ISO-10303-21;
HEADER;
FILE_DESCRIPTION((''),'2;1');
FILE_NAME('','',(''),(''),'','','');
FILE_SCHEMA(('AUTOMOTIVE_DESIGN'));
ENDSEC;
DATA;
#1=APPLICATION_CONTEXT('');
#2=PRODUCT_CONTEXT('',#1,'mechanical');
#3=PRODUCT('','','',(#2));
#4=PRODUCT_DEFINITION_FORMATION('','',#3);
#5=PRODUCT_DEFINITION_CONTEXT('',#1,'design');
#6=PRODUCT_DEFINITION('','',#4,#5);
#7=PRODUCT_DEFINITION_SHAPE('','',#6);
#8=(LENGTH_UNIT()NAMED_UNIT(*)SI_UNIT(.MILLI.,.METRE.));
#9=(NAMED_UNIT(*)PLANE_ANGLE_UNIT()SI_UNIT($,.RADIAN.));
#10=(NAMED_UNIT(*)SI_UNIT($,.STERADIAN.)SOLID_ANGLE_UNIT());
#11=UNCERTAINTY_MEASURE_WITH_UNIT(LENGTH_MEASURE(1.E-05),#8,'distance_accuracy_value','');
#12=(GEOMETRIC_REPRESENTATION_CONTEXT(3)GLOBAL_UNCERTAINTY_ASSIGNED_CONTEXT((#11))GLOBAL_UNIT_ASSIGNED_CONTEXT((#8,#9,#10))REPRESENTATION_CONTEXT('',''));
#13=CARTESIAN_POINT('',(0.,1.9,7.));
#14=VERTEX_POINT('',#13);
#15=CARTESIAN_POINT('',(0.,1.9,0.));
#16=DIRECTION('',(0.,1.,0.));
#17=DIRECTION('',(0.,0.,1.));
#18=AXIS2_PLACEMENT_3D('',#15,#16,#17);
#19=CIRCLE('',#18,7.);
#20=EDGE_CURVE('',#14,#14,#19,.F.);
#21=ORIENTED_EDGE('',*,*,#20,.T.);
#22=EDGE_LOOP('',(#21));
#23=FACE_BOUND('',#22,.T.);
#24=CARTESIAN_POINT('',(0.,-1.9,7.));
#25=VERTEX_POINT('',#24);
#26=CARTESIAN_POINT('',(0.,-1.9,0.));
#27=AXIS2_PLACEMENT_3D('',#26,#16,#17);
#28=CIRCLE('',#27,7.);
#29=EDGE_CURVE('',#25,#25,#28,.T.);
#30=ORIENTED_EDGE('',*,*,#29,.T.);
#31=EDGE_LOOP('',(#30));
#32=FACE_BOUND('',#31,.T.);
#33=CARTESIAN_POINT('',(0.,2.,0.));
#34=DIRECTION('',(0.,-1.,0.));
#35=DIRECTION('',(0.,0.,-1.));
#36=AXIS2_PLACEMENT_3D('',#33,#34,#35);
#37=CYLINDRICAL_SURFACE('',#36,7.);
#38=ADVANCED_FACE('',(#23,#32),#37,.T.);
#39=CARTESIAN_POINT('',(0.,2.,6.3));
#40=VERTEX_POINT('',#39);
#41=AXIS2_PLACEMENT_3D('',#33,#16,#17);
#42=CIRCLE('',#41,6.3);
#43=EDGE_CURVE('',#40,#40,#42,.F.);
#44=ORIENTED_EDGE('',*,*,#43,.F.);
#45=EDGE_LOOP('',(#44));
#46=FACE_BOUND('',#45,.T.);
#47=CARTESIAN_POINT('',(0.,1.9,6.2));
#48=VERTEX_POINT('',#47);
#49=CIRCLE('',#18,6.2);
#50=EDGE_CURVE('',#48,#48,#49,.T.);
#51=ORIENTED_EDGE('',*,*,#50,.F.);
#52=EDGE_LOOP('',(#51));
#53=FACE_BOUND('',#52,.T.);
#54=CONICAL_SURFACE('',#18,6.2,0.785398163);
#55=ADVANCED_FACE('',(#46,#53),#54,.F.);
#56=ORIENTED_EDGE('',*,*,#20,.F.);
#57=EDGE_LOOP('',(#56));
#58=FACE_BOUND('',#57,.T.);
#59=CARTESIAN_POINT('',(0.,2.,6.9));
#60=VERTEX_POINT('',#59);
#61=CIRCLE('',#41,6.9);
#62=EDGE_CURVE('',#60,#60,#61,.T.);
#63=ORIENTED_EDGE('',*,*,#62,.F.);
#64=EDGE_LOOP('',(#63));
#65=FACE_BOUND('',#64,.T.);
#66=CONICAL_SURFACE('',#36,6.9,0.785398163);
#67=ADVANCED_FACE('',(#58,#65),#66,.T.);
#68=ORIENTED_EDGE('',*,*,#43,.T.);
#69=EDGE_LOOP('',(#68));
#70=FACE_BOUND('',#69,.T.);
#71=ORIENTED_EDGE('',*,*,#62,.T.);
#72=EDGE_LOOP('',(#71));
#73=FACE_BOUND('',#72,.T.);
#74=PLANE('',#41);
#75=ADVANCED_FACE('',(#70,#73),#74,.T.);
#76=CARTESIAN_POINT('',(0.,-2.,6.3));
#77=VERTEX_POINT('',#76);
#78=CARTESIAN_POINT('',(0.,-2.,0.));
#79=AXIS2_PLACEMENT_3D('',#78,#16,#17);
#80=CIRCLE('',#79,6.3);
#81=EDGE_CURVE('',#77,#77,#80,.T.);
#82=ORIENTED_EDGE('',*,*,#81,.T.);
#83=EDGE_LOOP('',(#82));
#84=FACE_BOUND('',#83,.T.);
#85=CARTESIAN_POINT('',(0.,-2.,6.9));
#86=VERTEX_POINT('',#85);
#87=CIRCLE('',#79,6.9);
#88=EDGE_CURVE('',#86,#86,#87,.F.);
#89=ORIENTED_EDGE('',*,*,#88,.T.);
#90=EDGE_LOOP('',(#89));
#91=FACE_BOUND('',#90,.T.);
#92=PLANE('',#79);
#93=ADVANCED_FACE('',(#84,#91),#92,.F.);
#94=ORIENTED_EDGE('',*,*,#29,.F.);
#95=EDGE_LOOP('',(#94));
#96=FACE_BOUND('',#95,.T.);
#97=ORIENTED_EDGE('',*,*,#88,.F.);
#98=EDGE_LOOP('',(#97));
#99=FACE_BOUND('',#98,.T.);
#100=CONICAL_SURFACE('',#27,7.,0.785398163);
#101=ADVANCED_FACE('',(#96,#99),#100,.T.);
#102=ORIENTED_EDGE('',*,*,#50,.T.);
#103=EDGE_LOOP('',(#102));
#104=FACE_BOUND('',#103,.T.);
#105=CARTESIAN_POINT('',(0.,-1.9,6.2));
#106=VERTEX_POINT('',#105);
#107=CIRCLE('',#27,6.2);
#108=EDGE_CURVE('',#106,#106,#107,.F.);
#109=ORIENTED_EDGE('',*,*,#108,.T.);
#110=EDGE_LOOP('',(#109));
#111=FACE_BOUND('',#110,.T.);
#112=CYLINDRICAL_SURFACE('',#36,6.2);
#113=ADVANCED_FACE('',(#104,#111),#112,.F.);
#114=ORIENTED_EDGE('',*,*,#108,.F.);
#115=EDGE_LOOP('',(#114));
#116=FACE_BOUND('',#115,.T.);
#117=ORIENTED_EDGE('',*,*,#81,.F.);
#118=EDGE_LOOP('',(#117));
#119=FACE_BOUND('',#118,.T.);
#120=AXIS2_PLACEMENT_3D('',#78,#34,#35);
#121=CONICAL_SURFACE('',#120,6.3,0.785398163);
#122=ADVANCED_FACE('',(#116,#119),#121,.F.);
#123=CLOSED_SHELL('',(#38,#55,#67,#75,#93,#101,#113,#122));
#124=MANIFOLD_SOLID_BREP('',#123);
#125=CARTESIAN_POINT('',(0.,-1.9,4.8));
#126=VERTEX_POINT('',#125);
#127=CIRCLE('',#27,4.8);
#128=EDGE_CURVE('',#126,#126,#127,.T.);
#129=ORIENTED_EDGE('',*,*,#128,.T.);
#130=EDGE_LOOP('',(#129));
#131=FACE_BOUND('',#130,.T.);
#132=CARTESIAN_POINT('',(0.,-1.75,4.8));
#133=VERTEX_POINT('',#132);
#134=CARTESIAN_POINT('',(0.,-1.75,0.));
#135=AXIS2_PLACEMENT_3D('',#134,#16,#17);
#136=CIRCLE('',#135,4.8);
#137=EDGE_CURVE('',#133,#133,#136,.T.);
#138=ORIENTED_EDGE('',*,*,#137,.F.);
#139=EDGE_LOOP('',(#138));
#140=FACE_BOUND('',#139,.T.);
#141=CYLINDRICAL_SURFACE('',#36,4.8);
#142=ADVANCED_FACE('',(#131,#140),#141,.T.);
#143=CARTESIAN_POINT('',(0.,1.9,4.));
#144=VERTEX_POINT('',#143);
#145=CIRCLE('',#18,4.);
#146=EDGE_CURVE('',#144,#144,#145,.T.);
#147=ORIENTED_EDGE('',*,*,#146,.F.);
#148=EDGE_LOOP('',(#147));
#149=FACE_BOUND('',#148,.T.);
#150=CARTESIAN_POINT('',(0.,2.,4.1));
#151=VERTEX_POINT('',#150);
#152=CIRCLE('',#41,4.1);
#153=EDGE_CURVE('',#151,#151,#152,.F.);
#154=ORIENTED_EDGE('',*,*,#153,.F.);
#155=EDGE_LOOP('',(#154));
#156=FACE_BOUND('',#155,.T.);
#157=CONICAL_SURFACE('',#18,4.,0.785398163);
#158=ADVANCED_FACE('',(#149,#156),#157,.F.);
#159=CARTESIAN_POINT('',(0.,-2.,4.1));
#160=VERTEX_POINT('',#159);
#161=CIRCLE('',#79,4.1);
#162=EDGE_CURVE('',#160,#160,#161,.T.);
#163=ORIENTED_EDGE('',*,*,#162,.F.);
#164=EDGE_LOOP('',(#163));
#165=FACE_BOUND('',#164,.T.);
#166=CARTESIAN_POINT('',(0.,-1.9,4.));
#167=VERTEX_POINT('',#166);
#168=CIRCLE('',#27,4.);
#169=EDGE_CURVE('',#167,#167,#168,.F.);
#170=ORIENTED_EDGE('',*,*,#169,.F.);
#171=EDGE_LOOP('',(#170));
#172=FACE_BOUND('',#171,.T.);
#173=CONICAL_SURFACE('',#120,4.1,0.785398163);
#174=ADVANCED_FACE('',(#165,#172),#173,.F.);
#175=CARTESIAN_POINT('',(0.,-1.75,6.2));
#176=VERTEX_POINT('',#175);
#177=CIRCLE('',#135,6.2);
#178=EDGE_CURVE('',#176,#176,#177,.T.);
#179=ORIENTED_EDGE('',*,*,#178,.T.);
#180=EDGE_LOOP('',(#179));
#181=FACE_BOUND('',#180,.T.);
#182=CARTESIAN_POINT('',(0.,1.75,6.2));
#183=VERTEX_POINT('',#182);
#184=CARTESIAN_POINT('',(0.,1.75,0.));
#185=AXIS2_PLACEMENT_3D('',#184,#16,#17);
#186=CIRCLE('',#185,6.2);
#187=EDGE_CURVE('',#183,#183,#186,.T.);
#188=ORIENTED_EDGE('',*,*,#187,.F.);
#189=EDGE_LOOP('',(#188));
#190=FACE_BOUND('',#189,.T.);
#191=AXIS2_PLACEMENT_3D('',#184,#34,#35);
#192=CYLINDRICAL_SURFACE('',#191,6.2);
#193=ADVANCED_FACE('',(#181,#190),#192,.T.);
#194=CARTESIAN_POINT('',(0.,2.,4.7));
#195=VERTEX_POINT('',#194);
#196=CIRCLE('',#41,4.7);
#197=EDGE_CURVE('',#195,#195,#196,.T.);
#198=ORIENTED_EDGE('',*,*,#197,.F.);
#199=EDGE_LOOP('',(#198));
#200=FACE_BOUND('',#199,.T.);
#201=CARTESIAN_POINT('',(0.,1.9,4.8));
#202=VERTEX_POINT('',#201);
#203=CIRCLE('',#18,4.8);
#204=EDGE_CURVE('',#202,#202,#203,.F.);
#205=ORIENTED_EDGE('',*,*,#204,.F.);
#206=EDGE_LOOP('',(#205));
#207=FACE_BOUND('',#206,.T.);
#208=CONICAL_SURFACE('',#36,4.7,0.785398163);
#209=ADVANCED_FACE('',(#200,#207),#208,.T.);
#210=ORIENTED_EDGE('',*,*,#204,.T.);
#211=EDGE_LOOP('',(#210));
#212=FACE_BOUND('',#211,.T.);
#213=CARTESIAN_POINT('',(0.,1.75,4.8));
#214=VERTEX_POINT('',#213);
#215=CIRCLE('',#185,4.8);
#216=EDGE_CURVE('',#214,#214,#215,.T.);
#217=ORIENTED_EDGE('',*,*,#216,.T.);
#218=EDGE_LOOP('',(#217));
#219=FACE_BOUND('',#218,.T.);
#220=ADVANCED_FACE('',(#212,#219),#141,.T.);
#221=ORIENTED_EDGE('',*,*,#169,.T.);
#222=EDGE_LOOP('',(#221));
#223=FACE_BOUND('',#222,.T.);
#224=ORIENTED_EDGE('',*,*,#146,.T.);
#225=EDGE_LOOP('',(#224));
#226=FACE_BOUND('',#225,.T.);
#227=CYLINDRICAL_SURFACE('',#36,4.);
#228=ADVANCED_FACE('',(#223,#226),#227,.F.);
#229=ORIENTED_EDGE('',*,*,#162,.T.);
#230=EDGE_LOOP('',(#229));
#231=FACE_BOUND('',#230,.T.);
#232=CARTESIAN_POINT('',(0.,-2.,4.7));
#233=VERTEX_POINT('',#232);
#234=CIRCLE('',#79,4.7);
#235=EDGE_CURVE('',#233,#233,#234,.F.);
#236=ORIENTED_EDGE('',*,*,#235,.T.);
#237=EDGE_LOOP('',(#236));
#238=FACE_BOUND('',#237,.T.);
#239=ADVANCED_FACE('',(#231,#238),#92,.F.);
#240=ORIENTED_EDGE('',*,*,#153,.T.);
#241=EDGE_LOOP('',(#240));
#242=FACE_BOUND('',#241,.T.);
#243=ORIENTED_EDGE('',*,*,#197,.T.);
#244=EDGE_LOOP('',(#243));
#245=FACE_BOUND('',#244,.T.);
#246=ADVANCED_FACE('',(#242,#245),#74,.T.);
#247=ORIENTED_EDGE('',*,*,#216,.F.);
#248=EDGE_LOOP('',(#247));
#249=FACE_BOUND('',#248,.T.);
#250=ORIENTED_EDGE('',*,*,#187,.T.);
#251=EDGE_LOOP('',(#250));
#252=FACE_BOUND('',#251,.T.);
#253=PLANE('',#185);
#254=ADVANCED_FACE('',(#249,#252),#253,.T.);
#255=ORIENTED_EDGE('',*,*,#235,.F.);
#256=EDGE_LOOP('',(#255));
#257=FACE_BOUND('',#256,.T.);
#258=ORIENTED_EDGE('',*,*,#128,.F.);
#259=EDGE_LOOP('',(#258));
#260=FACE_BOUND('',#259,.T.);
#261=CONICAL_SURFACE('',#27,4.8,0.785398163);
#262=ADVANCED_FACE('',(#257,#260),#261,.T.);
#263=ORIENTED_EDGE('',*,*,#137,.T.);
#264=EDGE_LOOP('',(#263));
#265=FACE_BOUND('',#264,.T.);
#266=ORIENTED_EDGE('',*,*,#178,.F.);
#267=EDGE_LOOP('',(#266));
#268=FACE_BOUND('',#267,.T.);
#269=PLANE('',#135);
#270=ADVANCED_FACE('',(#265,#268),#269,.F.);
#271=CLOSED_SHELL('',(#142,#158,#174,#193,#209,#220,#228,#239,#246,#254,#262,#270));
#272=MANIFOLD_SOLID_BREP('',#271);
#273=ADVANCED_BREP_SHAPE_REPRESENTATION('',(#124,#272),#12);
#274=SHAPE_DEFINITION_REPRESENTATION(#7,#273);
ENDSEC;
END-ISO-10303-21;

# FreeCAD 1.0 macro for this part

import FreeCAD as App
import Part
import Sketcher

V = App.Vector


def edges_at(feature, points):
    """Names of the edges that pass closest to the given points."""
    edges = feature.Shape.Edges
    near = lambda p: min(range(len(edges)), key=lambda i: edges[i].distToShape(Part.Vertex(*p))[0])
    return sorted({f"Edge{near(p) + 1}" for p in points})

doc = App.newDocument("Part")
body = doc.addObject("PartDesign::Body", "Body")

sketch1 = doc.addObject("Sketcher::SketchObject", "Sketch")
body.addObject(sketch1)
sketch1.AttachmentSupport = (doc.XZ_Plane, [""])
sketch1.MapMode = "FlatFace"
sketch1.addGeometry(Part.Circle(V(0, 0, 0), V(0, 0, 1), 7), False)
sketch1.addGeometry(Part.Circle(V(0, 0, 0), V(0, 0, 1), 6), False)
sketch1.addConstraint(Sketcher.Constraint("Coincident", 0, 3, -1, 1))
sketch1.addConstraint(Sketcher.Constraint("Coincident", 1, 3, -1, 1))
sketch1.addConstraint(Sketcher.Constraint("Diameter", 0, 14.0))
sketch1.addConstraint(Sketcher.Constraint("Diameter", 1, 12.4))
pad1 = doc.addObject("PartDesign::Pad", "Pad")
body.addObject(pad1)
pad1.Profile = sketch1
pad1.Length = 4
pad1.Midplane = True
doc.recompute()

chamfer = doc.addObject("PartDesign::Chamfer", "Chamfer")
body.addObject(chamfer)
chamfer.Base = (pad1, edges_at(pad1, [
    (0, -2, -7),
    (0, -2, -6.2),
    (0, 2, -6.2),
    (0, 2, -7),
]))
chamfer.Size = 0.1
body2 = doc.addObject("PartDesign::Body", "Body001")

sketch2 = doc.addObject("Sketcher::SketchObject", "Sketch001")
body2.addObject(sketch2)
sketch2.AttachmentSupport = (doc.getObject("XZ_Plane001"), [""])
sketch2.MapMode = "FlatFace"
sketch2.addGeometry(Part.Circle(V(0, 0, 0), V(0, 0, 1), 4.8), False)
sketch2.addGeometry(Part.Circle(V(0, 0, 0), V(0, 0, 1), 4), False)
sketch2.addConstraint(Sketcher.Constraint("Coincident", 0, 3, -1, 1))
sketch2.addConstraint(Sketcher.Constraint("Coincident", 1, 3, -1, 1))
sketch2.addConstraint(Sketcher.Constraint("Diameter", 1, 8.0))
sketch2.addConstraint(Sketcher.Constraint("Diameter", 0, 9.6))
pad2 = doc.addObject("PartDesign::Pad", "Pad001")
body2.addObject(pad2)
pad2.Profile = sketch2
pad2.Length = 4
pad2.Midplane = True

sketch3 = doc.addObject("Sketcher::SketchObject", "Sketch002")
body2.addObject(sketch3)
sketch3.AttachmentSupport = (doc.getObject("XZ_Plane001"), [""])
sketch3.MapMode = "FlatFace"
sketch3.addGeometry(Part.Circle(V(0, 0, 0), V(0, 0, 1), 6.2), False)
sketch3.addGeometry(Part.Circle(V(0, 0, 0), V(0, 0, 1), 4.8), False)
sketch3.addConstraint(Sketcher.Constraint("Coincident", 0, 3, -1, 1))
sketch3.addConstraint(Sketcher.Constraint("Coincident", 1, 3, -1, 1))
sketch3.addConstraint(Sketcher.Constraint("Diameter", 0, 12.4))
sketch3.addConstraint(Sketcher.Constraint("Diameter", 1, 9.6))
pad3 = doc.addObject("PartDesign::Pad", "Pad002")
body2.addObject(pad3)
pad3.Profile = sketch3
pad3.Length = 3.5
pad3.Midplane = True
doc.recompute()

chamfer2 = doc.addObject("PartDesign::Chamfer", "Chamfer001")
body2.addObject(chamfer2)
chamfer2.Base = (pad3, edges_at(pad3, [
    (0, -2, -4.8),
    (0, -2, -4),
    (0, 2, -4),
    (0, 2, -4.8),
]))
chamfer2.Size = 0.1

doc.recompute()
